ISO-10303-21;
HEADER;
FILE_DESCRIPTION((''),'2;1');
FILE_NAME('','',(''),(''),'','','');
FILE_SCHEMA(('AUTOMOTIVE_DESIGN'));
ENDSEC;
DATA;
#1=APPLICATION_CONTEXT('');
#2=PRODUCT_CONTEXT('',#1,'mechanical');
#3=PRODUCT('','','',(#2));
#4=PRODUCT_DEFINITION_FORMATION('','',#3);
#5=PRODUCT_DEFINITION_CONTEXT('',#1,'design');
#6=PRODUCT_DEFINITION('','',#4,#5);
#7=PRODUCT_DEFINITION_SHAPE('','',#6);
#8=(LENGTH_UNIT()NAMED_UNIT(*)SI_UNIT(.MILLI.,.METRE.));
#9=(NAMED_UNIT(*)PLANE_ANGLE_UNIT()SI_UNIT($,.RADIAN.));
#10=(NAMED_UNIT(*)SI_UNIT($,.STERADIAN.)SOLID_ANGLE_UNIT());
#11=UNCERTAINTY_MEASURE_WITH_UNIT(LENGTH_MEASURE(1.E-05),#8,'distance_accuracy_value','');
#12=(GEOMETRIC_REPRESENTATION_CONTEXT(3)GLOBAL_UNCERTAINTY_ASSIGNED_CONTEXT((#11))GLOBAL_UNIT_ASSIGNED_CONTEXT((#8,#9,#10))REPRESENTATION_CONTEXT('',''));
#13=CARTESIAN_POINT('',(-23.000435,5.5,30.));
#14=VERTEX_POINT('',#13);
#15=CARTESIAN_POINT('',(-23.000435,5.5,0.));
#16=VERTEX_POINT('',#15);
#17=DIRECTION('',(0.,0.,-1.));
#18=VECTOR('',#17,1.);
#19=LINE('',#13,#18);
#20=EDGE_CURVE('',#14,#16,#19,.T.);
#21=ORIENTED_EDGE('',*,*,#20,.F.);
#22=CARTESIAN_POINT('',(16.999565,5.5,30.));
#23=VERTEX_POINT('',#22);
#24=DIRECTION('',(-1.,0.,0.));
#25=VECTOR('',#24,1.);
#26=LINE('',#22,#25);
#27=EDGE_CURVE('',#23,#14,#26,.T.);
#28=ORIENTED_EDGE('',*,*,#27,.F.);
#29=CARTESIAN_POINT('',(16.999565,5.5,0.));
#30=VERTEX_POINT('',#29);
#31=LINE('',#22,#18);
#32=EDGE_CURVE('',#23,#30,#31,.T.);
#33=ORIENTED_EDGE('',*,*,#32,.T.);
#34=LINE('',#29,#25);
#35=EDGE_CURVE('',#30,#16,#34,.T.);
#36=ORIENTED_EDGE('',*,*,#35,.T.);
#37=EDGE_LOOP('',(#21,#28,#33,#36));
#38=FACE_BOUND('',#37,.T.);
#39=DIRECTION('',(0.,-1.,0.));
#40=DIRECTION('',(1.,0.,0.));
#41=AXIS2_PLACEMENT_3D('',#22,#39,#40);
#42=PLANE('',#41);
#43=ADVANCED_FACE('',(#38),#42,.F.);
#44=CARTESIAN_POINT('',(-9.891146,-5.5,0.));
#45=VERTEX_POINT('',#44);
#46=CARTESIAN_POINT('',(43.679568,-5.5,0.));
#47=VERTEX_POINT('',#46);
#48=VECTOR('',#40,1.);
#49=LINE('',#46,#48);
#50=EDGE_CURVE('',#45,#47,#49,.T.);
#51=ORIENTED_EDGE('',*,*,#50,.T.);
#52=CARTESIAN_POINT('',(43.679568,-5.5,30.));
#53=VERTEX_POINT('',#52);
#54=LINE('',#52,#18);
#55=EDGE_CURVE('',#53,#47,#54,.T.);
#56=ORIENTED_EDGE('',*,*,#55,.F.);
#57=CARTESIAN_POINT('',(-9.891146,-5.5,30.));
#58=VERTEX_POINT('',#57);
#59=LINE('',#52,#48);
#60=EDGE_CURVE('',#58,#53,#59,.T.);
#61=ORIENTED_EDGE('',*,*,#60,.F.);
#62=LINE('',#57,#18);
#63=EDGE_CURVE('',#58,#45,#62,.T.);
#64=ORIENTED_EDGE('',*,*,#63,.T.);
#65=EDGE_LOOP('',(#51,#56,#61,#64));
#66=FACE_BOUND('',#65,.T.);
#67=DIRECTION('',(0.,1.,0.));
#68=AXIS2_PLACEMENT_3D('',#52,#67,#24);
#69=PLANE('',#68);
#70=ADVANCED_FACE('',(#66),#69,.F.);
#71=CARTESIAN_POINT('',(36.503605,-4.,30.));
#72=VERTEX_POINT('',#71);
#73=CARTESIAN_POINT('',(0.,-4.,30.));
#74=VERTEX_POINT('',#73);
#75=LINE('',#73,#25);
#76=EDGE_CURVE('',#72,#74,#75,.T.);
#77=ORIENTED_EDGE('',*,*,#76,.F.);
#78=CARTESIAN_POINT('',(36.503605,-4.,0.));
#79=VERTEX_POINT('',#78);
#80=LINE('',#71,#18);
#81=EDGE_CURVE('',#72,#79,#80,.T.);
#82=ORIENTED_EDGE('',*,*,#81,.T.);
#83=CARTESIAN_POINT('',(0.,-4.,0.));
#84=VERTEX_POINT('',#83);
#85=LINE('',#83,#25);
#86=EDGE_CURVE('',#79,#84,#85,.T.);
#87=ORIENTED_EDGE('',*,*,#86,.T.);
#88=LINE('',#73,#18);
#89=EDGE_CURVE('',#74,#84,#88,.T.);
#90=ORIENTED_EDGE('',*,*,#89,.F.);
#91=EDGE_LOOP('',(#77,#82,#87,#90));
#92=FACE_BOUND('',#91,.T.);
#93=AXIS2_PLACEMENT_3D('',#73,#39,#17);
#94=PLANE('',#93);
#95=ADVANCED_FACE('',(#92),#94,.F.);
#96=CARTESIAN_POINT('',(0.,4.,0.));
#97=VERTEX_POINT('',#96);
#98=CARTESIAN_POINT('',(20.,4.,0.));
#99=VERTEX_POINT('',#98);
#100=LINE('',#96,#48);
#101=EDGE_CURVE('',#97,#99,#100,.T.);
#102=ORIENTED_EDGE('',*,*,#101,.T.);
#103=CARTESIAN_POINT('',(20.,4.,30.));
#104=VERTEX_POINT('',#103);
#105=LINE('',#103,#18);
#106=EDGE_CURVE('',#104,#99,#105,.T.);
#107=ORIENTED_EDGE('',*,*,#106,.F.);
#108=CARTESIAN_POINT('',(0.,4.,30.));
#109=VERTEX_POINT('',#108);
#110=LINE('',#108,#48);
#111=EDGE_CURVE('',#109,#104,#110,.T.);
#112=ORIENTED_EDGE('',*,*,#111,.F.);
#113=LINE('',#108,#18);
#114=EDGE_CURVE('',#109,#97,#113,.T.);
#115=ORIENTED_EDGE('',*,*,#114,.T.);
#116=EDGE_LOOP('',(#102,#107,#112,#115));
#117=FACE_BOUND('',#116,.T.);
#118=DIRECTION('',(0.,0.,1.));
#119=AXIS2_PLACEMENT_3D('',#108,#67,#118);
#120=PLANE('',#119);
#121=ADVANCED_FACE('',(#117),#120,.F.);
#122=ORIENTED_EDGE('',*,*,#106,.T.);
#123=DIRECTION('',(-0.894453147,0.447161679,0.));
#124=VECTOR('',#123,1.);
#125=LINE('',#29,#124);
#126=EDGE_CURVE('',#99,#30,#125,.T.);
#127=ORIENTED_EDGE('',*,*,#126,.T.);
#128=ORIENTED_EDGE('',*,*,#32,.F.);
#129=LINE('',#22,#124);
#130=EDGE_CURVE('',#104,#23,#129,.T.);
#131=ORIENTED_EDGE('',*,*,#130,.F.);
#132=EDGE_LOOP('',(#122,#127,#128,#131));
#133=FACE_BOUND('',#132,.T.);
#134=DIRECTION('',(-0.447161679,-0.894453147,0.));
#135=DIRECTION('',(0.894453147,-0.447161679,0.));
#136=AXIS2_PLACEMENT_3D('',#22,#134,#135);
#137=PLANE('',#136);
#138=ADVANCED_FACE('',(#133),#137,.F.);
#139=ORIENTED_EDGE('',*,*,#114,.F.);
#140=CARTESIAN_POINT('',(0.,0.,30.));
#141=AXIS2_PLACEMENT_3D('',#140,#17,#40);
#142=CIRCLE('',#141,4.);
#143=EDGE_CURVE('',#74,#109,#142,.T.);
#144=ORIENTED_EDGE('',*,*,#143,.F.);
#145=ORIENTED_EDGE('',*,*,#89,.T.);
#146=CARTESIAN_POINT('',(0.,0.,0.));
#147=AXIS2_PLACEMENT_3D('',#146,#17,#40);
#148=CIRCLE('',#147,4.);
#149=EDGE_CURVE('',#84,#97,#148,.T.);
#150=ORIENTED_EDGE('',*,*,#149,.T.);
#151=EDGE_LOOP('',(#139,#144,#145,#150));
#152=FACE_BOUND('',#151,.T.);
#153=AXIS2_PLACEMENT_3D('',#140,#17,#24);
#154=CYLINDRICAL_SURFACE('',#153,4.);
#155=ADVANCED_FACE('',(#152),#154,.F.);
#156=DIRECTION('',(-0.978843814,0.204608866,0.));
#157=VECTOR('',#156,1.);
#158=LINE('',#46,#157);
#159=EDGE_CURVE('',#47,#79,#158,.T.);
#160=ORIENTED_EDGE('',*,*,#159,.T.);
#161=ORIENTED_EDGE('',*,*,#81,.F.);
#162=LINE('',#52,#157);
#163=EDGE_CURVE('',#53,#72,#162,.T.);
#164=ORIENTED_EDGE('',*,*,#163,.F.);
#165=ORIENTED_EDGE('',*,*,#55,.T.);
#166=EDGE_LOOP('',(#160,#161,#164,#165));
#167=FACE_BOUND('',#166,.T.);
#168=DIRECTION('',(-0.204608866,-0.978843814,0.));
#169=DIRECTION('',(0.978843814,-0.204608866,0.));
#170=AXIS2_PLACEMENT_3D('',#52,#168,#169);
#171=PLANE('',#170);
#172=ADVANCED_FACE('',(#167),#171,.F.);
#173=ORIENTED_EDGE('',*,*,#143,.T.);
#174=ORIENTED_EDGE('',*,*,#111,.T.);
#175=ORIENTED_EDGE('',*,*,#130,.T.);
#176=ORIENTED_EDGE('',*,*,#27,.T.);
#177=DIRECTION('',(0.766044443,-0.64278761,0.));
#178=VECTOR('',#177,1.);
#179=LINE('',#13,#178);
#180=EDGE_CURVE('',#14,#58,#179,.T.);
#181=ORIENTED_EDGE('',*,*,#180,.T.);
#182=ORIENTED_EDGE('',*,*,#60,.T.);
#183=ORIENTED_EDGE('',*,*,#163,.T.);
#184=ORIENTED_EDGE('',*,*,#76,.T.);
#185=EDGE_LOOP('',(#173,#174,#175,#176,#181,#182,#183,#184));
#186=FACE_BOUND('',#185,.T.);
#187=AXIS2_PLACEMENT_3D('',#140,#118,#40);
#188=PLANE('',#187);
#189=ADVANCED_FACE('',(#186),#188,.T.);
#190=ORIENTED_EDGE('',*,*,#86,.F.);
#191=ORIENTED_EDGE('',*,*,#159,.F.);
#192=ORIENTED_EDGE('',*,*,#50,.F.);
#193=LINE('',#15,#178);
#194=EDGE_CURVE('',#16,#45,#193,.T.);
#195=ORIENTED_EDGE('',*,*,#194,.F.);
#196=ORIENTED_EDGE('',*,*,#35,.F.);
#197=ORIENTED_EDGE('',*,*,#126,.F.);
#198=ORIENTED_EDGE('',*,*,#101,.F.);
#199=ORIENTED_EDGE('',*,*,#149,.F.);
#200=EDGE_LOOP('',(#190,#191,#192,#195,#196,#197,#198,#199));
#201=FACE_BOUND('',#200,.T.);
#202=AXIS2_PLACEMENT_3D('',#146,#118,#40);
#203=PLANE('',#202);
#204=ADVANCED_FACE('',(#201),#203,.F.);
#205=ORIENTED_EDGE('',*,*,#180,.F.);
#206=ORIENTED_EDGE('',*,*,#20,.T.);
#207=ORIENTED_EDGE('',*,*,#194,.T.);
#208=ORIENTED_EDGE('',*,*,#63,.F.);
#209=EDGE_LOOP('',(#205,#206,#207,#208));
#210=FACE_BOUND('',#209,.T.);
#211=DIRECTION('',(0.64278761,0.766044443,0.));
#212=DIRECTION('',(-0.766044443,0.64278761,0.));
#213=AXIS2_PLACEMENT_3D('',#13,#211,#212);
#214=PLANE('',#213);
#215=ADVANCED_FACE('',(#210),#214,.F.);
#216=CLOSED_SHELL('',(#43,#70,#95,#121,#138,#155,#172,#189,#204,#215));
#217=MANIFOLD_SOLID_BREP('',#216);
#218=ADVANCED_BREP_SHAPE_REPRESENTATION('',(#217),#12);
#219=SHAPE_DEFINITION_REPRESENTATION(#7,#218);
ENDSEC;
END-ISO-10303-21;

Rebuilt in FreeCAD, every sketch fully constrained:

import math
import FreeCAD as App
import Part
import Sketcher

V = App.Vector
Q = App.Units.Quantity

doc = App.newDocument("Part")
body = doc.addObject("PartDesign::Body", "Body")

sketch1 = body.newObject("Sketcher::SketchObject", "Sketch")
sketch1.AttachmentSupport = (doc.getObject("XY_Plane"), [""])
sketch1.MapMode = "FlatFace"
sketch1.addGeometry(Part.LineSegment(V(0, 4, 0), V(20, 4, 0)), False)
sketch1.addGeometry(Part.LineSegment(V(20, 4, 0), V(17, 5.5, 0)), False)
sketch1.addGeometry(Part.LineSegment(V(17, 5.5, 0), V(-23, 5.5, 0)), False)
sketch1.addGeometry(Part.LineSegment(V(-23, 5.5, 0), V(-9.9, -5.5, 0)), False)
sketch1.addGeometry(Part.LineSegment(V(-9.9, -5.5, 0), V(43.7, -5.5, 0)), False)
sketch1.addGeometry(Part.LineSegment(V(43.7, -5.5, 0), V(36.5, -4, 0)), False)
sketch1.addGeometry(Part.LineSegment(V(36.5, -4, 0), V(0, -4, 0)), False)
sketch1.addGeometry(Part.ArcOfCircle(Part.Circle(V(0, 0, 0), V(0, 0, 1), 4), math.radians(90), math.radians(270)), False)
sketch1.addConstraint(Sketcher.Constraint("Coincident", 0, 2, 1, 1))
sketch1.addConstraint(Sketcher.Constraint("Coincident", 1, 2, 2, 1))
sketch1.addConstraint(Sketcher.Constraint("Coincident", 2, 2, 3, 1))
sketch1.addConstraint(Sketcher.Constraint("Coincident", 3, 2, 4, 1))
sketch1.addConstraint(Sketcher.Constraint("Coincident", 4, 2, 5, 1))
sketch1.addConstraint(Sketcher.Constraint("Coincident", 5, 2, 6, 1))
sketch1.addConstraint(Sketcher.Constraint("Tangent", 6, 2, 7, 2))
sketch1.addConstraint(Sketcher.Constraint("Tangent", 7, 1, 0, 1))
sketch1.addConstraint(Sketcher.Constraint("Horizontal", 0))
sketch1.addConstraint(Sketcher.Constraint("Horizontal", 2))
sketch1.addConstraint(Sketcher.Constraint("Horizontal", 4))
sketch1.addConstraint(Sketcher.Constraint("Horizontal", 6))
sketch1.addConstraint(Sketcher.Constraint("Coincident", 7, 3, -1, 1))
sketch1.addConstraint(Sketcher.Constraint("Radius", 7, 4.0))
sketch1.addConstraint(Sketcher.Constraint("DistanceX", 0, 1, 0, 2, 20.0))
sketch1.addConstraint(Sketcher.Constraint("DistanceX", 2, 2, 2, 1, 40.0))
sketch1.addConstraint(Sketcher.Constraint("Angle", 3, Q("-40 deg")))
sketch1.addConstraint(Sketcher.Constraint("DistanceY", 3, 2, 2, 2, 11.0))
sketch1.addConstraint(Sketcher.Constraint("DistanceY", -1, 1, 1, 2, 5.5))
sketch1.addConstraint(Sketcher.Constraint("Distance", 1, 3.354491))
sketch1.addConstraint(Sketcher.Constraint("Distance", 5, 7.331061))
sketch1.addConstraint(Sketcher.Constraint("DistanceX", 4, 1, 4, 2, 53.570714))
pad1 = body.newObject("PartDesign::Pad", "Pad")
pad1.Profile = sketch1
pad1.Length = 30

doc.recompute()
